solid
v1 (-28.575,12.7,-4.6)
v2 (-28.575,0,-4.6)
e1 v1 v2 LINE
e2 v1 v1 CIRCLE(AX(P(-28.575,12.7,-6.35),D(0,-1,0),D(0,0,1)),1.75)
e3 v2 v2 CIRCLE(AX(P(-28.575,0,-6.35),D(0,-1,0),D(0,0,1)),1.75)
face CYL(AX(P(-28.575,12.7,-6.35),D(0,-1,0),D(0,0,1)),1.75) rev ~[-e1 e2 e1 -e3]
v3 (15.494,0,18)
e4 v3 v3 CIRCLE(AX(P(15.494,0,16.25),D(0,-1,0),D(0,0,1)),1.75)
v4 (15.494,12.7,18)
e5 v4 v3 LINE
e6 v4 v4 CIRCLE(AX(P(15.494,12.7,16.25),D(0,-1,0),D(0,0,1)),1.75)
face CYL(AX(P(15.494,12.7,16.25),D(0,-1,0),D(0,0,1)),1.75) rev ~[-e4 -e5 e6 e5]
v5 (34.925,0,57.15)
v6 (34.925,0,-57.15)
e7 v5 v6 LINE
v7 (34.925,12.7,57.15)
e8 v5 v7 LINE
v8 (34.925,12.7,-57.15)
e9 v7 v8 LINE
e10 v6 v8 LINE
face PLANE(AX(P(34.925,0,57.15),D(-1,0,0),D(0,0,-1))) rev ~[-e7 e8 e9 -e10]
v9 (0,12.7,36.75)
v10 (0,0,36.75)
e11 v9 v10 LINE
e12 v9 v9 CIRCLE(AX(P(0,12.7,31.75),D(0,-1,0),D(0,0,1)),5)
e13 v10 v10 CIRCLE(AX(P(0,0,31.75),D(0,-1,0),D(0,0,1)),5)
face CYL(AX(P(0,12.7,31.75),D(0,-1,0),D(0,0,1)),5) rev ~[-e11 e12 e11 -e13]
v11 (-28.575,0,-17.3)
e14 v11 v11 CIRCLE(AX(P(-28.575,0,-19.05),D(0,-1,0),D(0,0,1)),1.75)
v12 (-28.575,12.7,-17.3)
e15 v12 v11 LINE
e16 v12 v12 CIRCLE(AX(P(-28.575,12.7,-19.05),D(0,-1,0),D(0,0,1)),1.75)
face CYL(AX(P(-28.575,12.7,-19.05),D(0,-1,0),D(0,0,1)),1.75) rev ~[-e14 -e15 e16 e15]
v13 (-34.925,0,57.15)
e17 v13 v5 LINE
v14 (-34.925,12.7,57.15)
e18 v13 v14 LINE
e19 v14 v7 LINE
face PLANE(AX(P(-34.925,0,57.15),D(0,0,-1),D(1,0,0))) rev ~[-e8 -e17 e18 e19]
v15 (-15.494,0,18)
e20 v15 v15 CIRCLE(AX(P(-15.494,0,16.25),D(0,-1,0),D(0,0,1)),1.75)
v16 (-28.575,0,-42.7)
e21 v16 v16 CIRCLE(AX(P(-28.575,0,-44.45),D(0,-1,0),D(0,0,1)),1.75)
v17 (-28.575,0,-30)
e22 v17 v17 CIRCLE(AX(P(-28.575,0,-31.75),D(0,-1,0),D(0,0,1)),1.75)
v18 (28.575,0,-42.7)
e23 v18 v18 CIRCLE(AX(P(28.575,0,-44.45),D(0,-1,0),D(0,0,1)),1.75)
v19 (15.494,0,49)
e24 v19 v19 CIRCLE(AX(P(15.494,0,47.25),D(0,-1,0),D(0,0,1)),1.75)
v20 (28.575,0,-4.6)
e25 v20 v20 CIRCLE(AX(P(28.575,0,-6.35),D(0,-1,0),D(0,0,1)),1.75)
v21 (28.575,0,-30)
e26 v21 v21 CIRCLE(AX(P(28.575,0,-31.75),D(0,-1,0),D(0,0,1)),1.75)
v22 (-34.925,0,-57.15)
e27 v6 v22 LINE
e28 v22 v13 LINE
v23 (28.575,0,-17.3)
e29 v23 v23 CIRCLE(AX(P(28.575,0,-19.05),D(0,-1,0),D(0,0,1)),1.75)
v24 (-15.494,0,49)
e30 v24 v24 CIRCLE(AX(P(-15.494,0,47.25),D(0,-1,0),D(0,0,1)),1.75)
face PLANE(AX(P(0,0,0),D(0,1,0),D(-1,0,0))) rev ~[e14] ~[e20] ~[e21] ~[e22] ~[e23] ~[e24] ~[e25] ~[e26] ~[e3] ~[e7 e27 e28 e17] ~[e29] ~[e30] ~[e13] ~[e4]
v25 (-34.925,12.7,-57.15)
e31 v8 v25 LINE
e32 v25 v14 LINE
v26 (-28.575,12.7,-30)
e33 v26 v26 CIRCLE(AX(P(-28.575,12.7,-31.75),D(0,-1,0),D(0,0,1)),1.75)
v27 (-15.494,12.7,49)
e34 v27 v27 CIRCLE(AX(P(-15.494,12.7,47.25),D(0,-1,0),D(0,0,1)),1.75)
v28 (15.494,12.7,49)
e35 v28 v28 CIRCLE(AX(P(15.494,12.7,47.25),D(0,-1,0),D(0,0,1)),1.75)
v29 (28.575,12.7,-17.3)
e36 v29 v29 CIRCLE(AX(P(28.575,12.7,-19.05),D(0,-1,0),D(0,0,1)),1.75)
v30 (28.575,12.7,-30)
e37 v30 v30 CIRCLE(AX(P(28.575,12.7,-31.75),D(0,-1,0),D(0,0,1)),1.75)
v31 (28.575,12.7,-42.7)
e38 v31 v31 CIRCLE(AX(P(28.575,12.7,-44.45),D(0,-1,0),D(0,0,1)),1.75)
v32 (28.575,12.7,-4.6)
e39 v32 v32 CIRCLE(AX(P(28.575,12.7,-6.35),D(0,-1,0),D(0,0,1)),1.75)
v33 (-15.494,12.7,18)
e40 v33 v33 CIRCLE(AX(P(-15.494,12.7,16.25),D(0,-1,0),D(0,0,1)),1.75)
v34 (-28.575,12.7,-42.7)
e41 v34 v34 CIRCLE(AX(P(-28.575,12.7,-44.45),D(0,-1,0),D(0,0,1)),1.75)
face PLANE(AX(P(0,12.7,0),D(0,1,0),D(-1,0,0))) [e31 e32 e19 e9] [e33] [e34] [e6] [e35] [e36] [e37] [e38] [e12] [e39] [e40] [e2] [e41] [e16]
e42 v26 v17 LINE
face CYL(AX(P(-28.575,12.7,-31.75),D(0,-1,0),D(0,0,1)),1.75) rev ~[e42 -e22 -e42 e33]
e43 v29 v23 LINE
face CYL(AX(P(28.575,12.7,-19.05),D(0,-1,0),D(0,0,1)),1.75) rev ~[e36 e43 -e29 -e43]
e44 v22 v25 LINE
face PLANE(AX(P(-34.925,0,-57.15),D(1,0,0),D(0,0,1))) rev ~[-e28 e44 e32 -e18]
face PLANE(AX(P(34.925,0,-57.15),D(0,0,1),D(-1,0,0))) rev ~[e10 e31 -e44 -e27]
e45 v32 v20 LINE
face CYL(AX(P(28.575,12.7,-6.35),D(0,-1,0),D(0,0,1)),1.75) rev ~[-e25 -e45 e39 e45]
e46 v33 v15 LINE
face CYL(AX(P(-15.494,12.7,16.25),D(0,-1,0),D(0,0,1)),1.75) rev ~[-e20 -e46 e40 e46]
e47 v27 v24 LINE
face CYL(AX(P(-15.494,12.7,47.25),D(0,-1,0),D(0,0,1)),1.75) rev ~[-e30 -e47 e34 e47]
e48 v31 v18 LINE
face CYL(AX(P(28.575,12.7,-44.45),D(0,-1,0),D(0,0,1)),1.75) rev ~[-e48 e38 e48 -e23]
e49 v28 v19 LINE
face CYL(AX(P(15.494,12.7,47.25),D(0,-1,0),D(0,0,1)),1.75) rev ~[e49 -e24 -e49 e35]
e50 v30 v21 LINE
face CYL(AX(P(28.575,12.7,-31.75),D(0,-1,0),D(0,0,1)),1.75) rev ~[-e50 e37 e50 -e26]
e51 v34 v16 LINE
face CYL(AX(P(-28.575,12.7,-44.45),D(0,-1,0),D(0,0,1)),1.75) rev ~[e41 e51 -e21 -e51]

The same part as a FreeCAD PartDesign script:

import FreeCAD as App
import Part
import Sketcher
Q = App.Units.Quantity

doc = App.newDocument("Part")
body = doc.addObject("PartDesign::Body", "Body")

# Sketch on XZ plane
sketch1 = body.newObject("Sketcher::SketchObject", "Sketch")
sketch1.AttachmentSupport = (doc.getObject("XZ_Plane"), [""])
sketch1.MapMode = "FlatFace"
sketch1.addGeometry([
    Part.LineSegment(App.Vector(35, 57, 0), App.Vector(35, -57, 0)),
    Part.LineSegment(App.Vector(35, -57, 0), App.Vector(-35, -57, 0)),
    Part.LineSegment(App.Vector(-35, -57, 0), App.Vector(-35, 57, 0)),
    Part.LineSegment(App.Vector(-35, 57, 0), App.Vector(35, 57, 0)),
], False)
sketch1.addConstraint([
    Sketcher.Constraint("Coincident", 0, 2, 1, 1),
    Sketcher.Constraint("Coincident", 1, 2, 2, 1),
    Sketcher.Constraint("Coincident", 2, 2, 3, 1),
    Sketcher.Constraint("Coincident", 3, 2, 0, 1),
    Sketcher.Constraint("Vertical", 0),
    Sketcher.Constraint("Horizontal", 1),
    Sketcher.Constraint("Vertical", 2),
    Sketcher.Constraint("Horizontal", 3),
    Sketcher.Constraint("Symmetric", 0, 2, 2, 2, -1, 1),
    Sketcher.Constraint("DistanceY", 0, 2, 0, 1, Q("4.5 in")),
    Sketcher.Constraint("DistanceX", 1, 2, 1, 1, Q("2.75 in")),
])
pad1 = body.newObject("PartDesign::Pad", "Pad")
pad1.Profile = sketch1
pad1.Length = Q("0.5 in")
pad1.Reversed = True

# Sketch on XZ plane
sketch2 = body.newObject("Sketcher::SketchObject", "Sketch001")
sketch2.AttachmentSupport = (doc.getObject("XZ_Plane"), [""])
sketch2.MapMode = "FlatFace"
sketch2.AttachmentOffset = App.Placement(App.Vector(0, 0, -0.5 * 25.4), App.Rotation())
sketch2.addGeometry([
    Part.Circle(App.Vector(15.5, 47.2, 0), App.Vector(0, 0, 1), 1.8),
    Part.Circle(App.Vector(15.5, 16.2, 0), App.Vector(0, 0, 1), 1.8),
    Part.Circle(App.Vector(-15.5, 16.2, 0), App.Vector(0, 0, 1), 1.8),
    Part.Circle(App.Vector(-15.5, 47.2, 0), App.Vector(0, 0, 1), 1.8),
], False)
sketch2.addConstraint([
    Sketcher.Constraint("Equal", 0, 1),
    Sketcher.Constraint("Equal", 1, 2),
    Sketcher.Constraint("Equal", 2, 3),
    Sketcher.Constraint("Symmetric", 1, 3, 2, 3, -2),
    Sketcher.Constraint("Symmetric", 0, 3, 3, 3, -2),
    Sketcher.Constraint("Vertical", 0, 3, 1, 3),
    Sketcher.Constraint("Diameter", 0, Q("0.1378 in")),
    Sketcher.Constraint("DistanceX", -1, 1, 0, 3, Q("0.61 in")),
    Sketcher.Constraint("DistanceY", -1, 1, 0, 3, 47.25),
    Sketcher.Constraint("DistanceY", -1, 1, 1, 3, 16.25),
])
doc.recompute()
hole = body.newObject("PartDesign::Hole", "Hole")
hole.Profile = sketch2
hole.ThreadType = "None"
hole.Diameter = Q("0.1377953 in")
hole.DepthType = "ThroughAll"
hole.Reversed = True

# Sketch on XZ plane
sketch3 = body.newObject("Sketcher::SketchObject", "Sketch002")
sketch3.AttachmentSupport = (doc.getObject("XZ_Plane"), [""])
sketch3.MapMode = "FlatFace"
sketch3.AttachmentOffset = App.Placement(App.Vector(0, 0, -0.5 * 25.4), App.Rotation())
sketch3.addGeometry(Part.Circle(App.Vector(0, 32, 0), App.Vector(0, 0, 1), 5), False)
sketch3.addConstraint([
    Sketcher.Constraint("PointOnObject", 0, 3, -2),
    Sketcher.Constraint("Diameter", 0, Q("0.3937 in")),
    Sketcher.Constraint("DistanceY", -1, 1, 0, 3, Q("1.25 in")),
])
doc.recompute()
hole2 = body.newObject("PartDesign::Hole", "Hole001")
hole2.Profile = sketch3
hole2.ThreadType = "None"
hole2.Diameter = Q("0.3937008 in")
hole2.DepthType = "ThroughAll"
hole2.Reversed = True

# Sketch on XZ plane
sketch4 = body.newObject("Sketcher::SketchObject", "Sketch003")
sketch4.AttachmentSupport = (doc.getObject("XZ_Plane"), [""])
sketch4.MapMode = "FlatFace"
sketch4.AttachmentOffset = App.Placement(App.Vector(0, 0, -0.5 * 25.4), App.Rotation())
sketch4.addGeometry([
    Part.Circle(App.Vector(-28.6, -6.3, 0), App.Vector(0, 0, 1), 1.8),  # 0
    Part.Circle(App.Vector(-28.6, -19.1, 0), App.Vector(0, 0, 1), 1.8),  # 1
    Part.Circle(App.Vector(-28.6, -31.8, 0), App.Vector(0, 0, 1), 1.8),  # 2
    Part.Circle(App.Vector(-28.6, -44.5, 0), App.Vector(0, 0, 1), 1.8),  # 3
    Part.Circle(App.Vector(28.6, -44.5, 0), App.Vector(0, 0, 1), 1.8),  # 4
    Part.Circle(App.Vector(28.6, -31.8, 0), App.Vector(0, 0, 1), 1.8),  # 5
    Part.Circle(App.Vector(28.6, -19.1, 0), App.Vector(0, 0, 1), 1.8),  # 6
    Part.Circle(App.Vector(28.6, -6.3, 0), App.Vector(0, 0, 1), 1.8),  # 7
], False)
sketch4.addConstraint([
    Sketcher.Constraint("Equal", 0, 1),
    Sketcher.Constraint("Equal", 1, 2),
    Sketcher.Constraint("Equal", 2, 3),
    Sketcher.Constraint("Equal", 3, 4),
    Sketcher.Constraint("Equal", 4, 5),
    Sketcher.Constraint("Equal", 5, 6),
    Sketcher.Constraint("Equal", 6, 7),
    Sketcher.Constraint("Symmetric", 3, 3, 4, 3, -2),
    Sketcher.Constraint("Symmetric", 2, 3, 5, 3, -2),
    Sketcher.Constraint("Symmetric", 1, 3, 6, 3, -2),
    Sketcher.Constraint("Symmetric", 0, 3, 7, 3, -2),
    Sketcher.Constraint("Vertical", 0, 3, 1, 3),
    Sketcher.Constraint("Vertical", 1, 3, 2, 3),
    Sketcher.Constraint("Vertical", 2, 3, 3, 3),
    Sketcher.Constraint("DistanceY", 2, 3, 0, 3, Q("1 in")),
    Sketcher.Constraint("DistanceY", 3, 3, 1, 3, Q("1 in")),
    Sketcher.Constraint("Diameter", 0, Q("0.1378 in")),
    Sketcher.Constraint("DistanceY", 1, 3, 0, 3, Q("0.5 in")),
    Sketcher.Constraint("DistanceY", 0, 3, -1, 1, Q("0.25 in")),
    Sketcher.Constraint("DistanceX", 3, 3, 4, 3, Q("2.25 in")),
])
doc.recompute()
hole3 = body.newObject("PartDesign::Hole", "Hole002")
hole3.Profile = sketch4
hole3.ThreadType = "None"
hole3.Diameter = Q("0.1377953 in")
hole3.DepthType = "ThroughAll"
hole3.Reversed = True

doc.recompute()
